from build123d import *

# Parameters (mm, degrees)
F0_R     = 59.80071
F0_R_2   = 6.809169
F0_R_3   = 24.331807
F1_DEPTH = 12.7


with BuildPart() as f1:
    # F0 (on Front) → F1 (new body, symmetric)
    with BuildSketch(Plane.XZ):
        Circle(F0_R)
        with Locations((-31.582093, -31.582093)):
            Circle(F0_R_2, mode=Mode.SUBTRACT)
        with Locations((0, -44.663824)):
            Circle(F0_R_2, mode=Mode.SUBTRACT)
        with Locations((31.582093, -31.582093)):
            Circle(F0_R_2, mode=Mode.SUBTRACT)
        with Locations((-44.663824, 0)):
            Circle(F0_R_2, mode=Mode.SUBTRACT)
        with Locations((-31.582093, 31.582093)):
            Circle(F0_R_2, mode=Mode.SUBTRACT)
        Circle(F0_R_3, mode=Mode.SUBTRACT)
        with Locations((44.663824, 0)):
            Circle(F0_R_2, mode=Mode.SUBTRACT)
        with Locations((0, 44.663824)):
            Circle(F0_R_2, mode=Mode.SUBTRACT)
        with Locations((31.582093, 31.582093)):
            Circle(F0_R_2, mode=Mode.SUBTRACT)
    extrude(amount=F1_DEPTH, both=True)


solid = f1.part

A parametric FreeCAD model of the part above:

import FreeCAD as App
import Part
import Sketcher
Q = App.Units.Quantity

doc = App.newDocument("Part")
body = doc.addObject("PartDesign::Body", "Body")

sketch1 = body.newObject("Sketcher::SketchObject", "Sketch")
sketch1.AttachmentSupport = (doc.getObject("XZ_Plane"), [""])
sketch1.MapMode = "FlatFace"
sketch1.addGeometry([
    Part.Circle(App.Vector(0, 0, 0), App.Vector(0, 0, 1), 60),
    Part.Circle(App.Vector(-32, -32, 0), App.Vector(0, 0, 1), 7),
    Part.Circle(App.Vector(0, -45, 0), App.Vector(0, 0, 1), 7),
    Part.Circle(App.Vector(32, -32, 0), App.Vector(0, 0, 1), 7),
    Part.Circle(App.Vector(-45, 0, 0), App.Vector(0, 0, 1), 7),
    Part.Circle(App.Vector(-32, 32, 0), App.Vector(0, 0, 1), 7),
    Part.Circle(App.Vector(0, 0, 0), App.Vector(0, 0, 1), 24),
    Part.Circle(App.Vector(45, 0, 0), App.Vector(0, 0, 1), 7),
    Part.Circle(App.Vector(0, 45, 0), App.Vector(0, 0, 1), 7),
    Part.Circle(App.Vector(32, 32, 0), App.Vector(0, 0, 1), 7),
], False)
sketch1.addConstraint([
    Sketcher.Constraint("Coincident", 0, 3, -1, 1),
    Sketcher.Constraint("Coincident", 6, 3, -1, 1),
    Sketcher.Constraint("Equal", 1, 2),
    Sketcher.Constraint("Equal", 2, 3),
    Sketcher.Constraint("Equal", 3, 4),
    Sketcher.Constraint("Equal", 4, 5),
    Sketcher.Constraint("Equal", 5, 7),
    Sketcher.Constraint("Equal", 7, 8),
    Sketcher.Constraint("Equal", 8, 9),
    Sketcher.Constraint("Symmetric", 3, 3, 5, 3, -1, 1),
    Sketcher.Constraint("Symmetric", 4, 3, 7, 3, -1, 1),
    Sketcher.Constraint("Symmetric", 2, 3, 8, 3, -1, 1),
    Sketcher.Constraint("Symmetric", 1, 3, 9, 3, -1, 1),
    Sketcher.Constraint("Symmetric", 1, 3, 3, 3, -2),
    Sketcher.Constraint("PointOnObject", 2, 3, -2),
    Sketcher.Constraint("PointOnObject", 4, 3, -1),
    Sketcher.Constraint("Diameter", 0, 119.60142),
    Sketcher.Constraint("Diameter", 1, 13.618338),
    Sketcher.Constraint("Diameter", 6, 48.663614),
    Sketcher.Constraint("DistanceY", 2, 3, 1, 3, 13.081731),
    Sketcher.Constraint("DistanceX", 4, 3, 1, 3, 13.081731),
    Sketcher.Constraint("DistanceX", 1, 3, -1, 1, 31.582093),
    Sketcher.Constraint("DistanceY", 1, 3, -1, 1, 31.582093),
])
pad1 = body.newObject("PartDesign::Pad", "Pad")
pad1.Profile = sketch1
pad1.Length = Q("1 in")
pad1.Midplane = True

doc.recompute()
